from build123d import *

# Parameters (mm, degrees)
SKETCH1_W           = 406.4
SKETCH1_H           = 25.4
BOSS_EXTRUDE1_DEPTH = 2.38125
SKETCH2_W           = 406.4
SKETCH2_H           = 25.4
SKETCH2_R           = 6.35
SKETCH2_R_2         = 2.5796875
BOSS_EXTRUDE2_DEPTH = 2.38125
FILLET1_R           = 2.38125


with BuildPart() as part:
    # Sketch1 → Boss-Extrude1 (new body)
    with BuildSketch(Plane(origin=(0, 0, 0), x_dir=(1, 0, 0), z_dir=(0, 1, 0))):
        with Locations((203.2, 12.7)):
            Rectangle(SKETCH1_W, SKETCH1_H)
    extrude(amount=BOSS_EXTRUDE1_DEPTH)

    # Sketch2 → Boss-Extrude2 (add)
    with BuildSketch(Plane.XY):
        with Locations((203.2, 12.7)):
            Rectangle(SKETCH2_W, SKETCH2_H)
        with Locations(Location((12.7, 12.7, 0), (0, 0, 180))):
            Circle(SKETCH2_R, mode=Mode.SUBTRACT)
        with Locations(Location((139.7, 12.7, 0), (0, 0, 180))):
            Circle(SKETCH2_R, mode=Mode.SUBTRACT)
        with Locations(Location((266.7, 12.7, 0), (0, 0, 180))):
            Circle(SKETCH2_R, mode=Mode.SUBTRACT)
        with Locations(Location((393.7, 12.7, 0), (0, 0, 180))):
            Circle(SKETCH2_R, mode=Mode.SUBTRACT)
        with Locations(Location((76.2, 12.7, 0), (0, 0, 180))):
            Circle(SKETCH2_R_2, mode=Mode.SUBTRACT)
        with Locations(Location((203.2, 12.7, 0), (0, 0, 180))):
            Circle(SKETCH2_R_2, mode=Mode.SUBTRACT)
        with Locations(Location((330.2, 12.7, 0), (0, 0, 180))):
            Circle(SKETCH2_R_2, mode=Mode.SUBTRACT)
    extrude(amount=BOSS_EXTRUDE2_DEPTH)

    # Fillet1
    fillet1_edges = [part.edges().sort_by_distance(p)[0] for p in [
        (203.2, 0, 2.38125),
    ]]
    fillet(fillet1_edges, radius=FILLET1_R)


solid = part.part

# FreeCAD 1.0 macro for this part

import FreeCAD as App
import Part
import Sketcher
Q = App.Units.Quantity


def edges_at(feature, points):
    """Names of the edges that pass closest to the given points."""
    edges = feature.Shape.Edges
    near = lambda p: min(range(len(edges)), key=lambda i: edges[i].distToShape(Part.Vertex(*p))[0])
    return sorted({f"Edge{near(p) + 1}" for p in points})

doc = App.newDocument("Part")
body = doc.addObject("PartDesign::Body", "Body")

sketch1 = body.newObject("Sketcher::SketchObject", "Sketch")
sketch1.AttachmentSupport = (doc.getObject("XZ_Plane"), [""])
sketch1.MapMode = "FlatFace"
sketch1.addGeometry(Part.LineSegment(App.Vector(0, -25, 0), App.Vector(0, 0, 0)), False)
sketch1.addGeometry(Part.LineSegment(App.Vector(0, 0, 0), App.Vector(406, 0, 0)), False)
sketch1.addGeometry(Part.LineSegment(App.Vector(406, 0, 0), App.Vector(406, -25, 0)), False)
sketch1.addGeometry(Part.LineSegment(App.Vector(406, -25, 0), App.Vector(0, -25, 0)), False)
sketch1.addConstraint(Sketcher.Constraint("Coincident", 0, 2, 1, 1))
sketch1.addConstraint(Sketcher.Constraint("Coincident", 1, 2, 2, 1))
sketch1.addConstraint(Sketcher.Constraint("Coincident", 2, 2, 3, 1))
sketch1.addConstraint(Sketcher.Constraint("Coincident", 3, 2, 0, 1))
sketch1.addConstraint(Sketcher.Constraint("Vertical", 0))
sketch1.addConstraint(Sketcher.Constraint("Horizontal", 1))
sketch1.addConstraint(Sketcher.Constraint("Vertical", 2))
sketch1.addConstraint(Sketcher.Constraint("Horizontal", 3))
sketch1.addConstraint(Sketcher.Constraint("Coincident", 0, 2, -1, 1))
sketch1.addConstraint(Sketcher.Constraint("DistanceX", 1, 1, 1, 2, Q("16 in")))
sketch1.addConstraint(Sketcher.Constraint("DistanceY", 0, 1, 0, 2, Q("1 in")))
pad1 = body.newObject("PartDesign::Pad", "Pad")
pad1.Profile = sketch1
pad1.Length = Q("0.09375 in")
pad1.Reversed = True

sketch2 = body.newObject("Sketcher::SketchObject", "Sketch001")
sketch2.AttachmentSupport = (doc.getObject("XY_Plane"), [""])
sketch2.MapMode = "FlatFace"
sketch2.addGeometry(Part.LineSegment(App.Vector(0, 25.4, 0), App.Vector(0, 0, 0)), False)
sketch2.addGeometry(Part.LineSegment(App.Vector(0, 0, 0), App.Vector(406.4, 0, 0)), False)
sketch2.addGeometry(Part.LineSegment(App.Vector(406.4, 0, 0), App.Vector(406.4, 25.4, 0)), False)
sketch2.addGeometry(Part.LineSegment(App.Vector(406.4, 25.4, 0), App.Vector(0, 25.4, 0)), False)
sketch2.addGeometry(Part.Circle(App.Vector(12.7, 12.7, 0), App.Vector(0, 0, 1), 6.3), False)
sketch2.addGeometry(Part.Circle(App.Vector(76.2, 12.7, 0), App.Vector(0, 0, 1), 2.6), False)
sketch2.addGeometry(Part.Circle(App.Vector(139.7, 12.7, 0), App.Vector(0, 0, 1), 6.3), False)
sketch2.addGeometry(Part.Circle(App.Vector(203.2, 12.7, 0), App.Vector(0, 0, 1), 2.6), False)
sketch2.addGeometry(Part.Circle(App.Vector(266.7, 12.7, 0), App.Vector(0, 0, 1), 6.3), False)
sketch2.addGeometry(Part.Circle(App.Vector(330.2, 12.7, 0), App.Vector(0, 0, 1), 2.6), False)
sketch2.addGeometry(Part.Circle(App.Vector(393.7, 12.7, 0), App.Vector(0, 0, 1), 6.3), False)
sketch2.addConstraint(Sketcher.Constraint("Coincident", 0, 2, 1, 1))
sketch2.addConstraint(Sketcher.Constraint("Coincident", 1, 2, 2, 1))
sketch2.addConstraint(Sketcher.Constraint("Coincident", 2, 2, 3, 1))
sketch2.addConstraint(Sketcher.Constraint("Coincident", 3, 2, 0, 1))
sketch2.addConstraint(Sketcher.Constraint("Vertical", 0))
sketch2.addConstraint(Sketcher.Constraint("Horizontal", 1))
sketch2.addConstraint(Sketcher.Constraint("Vertical", 2))
sketch2.addConstraint(Sketcher.Constraint("Horizontal", 3))
sketch2.addConstraint(Sketcher.Constraint("Coincident", 0, 2, -1, 1))
sketch2.addConstraint(Sketcher.Constraint("Equal", 4, 6))
sketch2.addConstraint(Sketcher.Constraint("Equal", 5, 7))
sketch2.addConstraint(Sketcher.Constraint("Equal", 6, 8))
sketch2.addConstraint(Sketcher.Constraint("Equal", 7, 9))
sketch2.addConstraint(Sketcher.Constraint("Equal", 8, 10))
sketch2.addConstraint(Sketcher.Constraint("Horizontal", 4, 3, 5, 3))
sketch2.addConstraint(Sketcher.Constraint("Horizontal", 5, 3, 6, 3))
sketch2.addConstraint(Sketcher.Constraint("Horizontal", 6, 3, 7, 3))
sketch2.addConstraint(Sketcher.Constraint("Horizontal", 7, 3, 8, 3))
sketch2.addConstraint(Sketcher.Constraint("Horizontal", 8, 3, 9, 3))
sketch2.addConstraint(Sketcher.Constraint("Horizontal", 9, 3, 10, 3))
sketch2.addConstraint(Sketcher.Constraint("Diameter", 4, Q("0.5 in")))
sketch2.addConstraint(Sketcher.Constraint("DistanceX", 1, 1, 1, 2, Q("16 in")))
sketch2.addConstraint(Sketcher.Constraint("DistanceY", 0, 2, 0, 1, Q("1 in")))
sketch2.addConstraint(Sketcher.Constraint("Diameter", 5, Q("0.203125 in")))
sketch2.addConstraint(Sketcher.Constraint("DistanceX", -1, 1, 5, 3, Q("3 in")))
sketch2.addConstraint(Sketcher.Constraint("DistanceX", -1, 1, 7, 3, Q("8 in")))
sketch2.addConstraint(Sketcher.Constraint("DistanceX", -1, 1, 9, 3, Q("13 in")))
sketch2.addConstraint(Sketcher.Constraint("DistanceX", 4, 3, 6, 3, Q("5 in")))
sketch2.addConstraint(Sketcher.Constraint("DistanceX", 6, 3, 8, 3, Q("5 in")))
sketch2.addConstraint(Sketcher.Constraint("DistanceX", 8, 3, 10, 3, Q("5 in")))
sketch2.addConstraint(Sketcher.Constraint("DistanceX", -1, 1, 4, 3, Q("0.5 in")))
sketch2.addConstraint(Sketcher.Constraint("DistanceY", -1, 1, 4, 3, Q("0.5 in")))
pad2 = body.newObject("PartDesign::Pad", "Pad001")
pad2.Profile = sketch2
pad2.Length = Q("0.09375 in")
doc.recompute()

fillet = body.newObject("PartDesign::Fillet", "Fillet")
fillet.Base = (pad2, edges_at(pad2, [(203.2, 0, 2.381)]))
fillet.Radius = Q("0.09375 in")

doc.recompute()
